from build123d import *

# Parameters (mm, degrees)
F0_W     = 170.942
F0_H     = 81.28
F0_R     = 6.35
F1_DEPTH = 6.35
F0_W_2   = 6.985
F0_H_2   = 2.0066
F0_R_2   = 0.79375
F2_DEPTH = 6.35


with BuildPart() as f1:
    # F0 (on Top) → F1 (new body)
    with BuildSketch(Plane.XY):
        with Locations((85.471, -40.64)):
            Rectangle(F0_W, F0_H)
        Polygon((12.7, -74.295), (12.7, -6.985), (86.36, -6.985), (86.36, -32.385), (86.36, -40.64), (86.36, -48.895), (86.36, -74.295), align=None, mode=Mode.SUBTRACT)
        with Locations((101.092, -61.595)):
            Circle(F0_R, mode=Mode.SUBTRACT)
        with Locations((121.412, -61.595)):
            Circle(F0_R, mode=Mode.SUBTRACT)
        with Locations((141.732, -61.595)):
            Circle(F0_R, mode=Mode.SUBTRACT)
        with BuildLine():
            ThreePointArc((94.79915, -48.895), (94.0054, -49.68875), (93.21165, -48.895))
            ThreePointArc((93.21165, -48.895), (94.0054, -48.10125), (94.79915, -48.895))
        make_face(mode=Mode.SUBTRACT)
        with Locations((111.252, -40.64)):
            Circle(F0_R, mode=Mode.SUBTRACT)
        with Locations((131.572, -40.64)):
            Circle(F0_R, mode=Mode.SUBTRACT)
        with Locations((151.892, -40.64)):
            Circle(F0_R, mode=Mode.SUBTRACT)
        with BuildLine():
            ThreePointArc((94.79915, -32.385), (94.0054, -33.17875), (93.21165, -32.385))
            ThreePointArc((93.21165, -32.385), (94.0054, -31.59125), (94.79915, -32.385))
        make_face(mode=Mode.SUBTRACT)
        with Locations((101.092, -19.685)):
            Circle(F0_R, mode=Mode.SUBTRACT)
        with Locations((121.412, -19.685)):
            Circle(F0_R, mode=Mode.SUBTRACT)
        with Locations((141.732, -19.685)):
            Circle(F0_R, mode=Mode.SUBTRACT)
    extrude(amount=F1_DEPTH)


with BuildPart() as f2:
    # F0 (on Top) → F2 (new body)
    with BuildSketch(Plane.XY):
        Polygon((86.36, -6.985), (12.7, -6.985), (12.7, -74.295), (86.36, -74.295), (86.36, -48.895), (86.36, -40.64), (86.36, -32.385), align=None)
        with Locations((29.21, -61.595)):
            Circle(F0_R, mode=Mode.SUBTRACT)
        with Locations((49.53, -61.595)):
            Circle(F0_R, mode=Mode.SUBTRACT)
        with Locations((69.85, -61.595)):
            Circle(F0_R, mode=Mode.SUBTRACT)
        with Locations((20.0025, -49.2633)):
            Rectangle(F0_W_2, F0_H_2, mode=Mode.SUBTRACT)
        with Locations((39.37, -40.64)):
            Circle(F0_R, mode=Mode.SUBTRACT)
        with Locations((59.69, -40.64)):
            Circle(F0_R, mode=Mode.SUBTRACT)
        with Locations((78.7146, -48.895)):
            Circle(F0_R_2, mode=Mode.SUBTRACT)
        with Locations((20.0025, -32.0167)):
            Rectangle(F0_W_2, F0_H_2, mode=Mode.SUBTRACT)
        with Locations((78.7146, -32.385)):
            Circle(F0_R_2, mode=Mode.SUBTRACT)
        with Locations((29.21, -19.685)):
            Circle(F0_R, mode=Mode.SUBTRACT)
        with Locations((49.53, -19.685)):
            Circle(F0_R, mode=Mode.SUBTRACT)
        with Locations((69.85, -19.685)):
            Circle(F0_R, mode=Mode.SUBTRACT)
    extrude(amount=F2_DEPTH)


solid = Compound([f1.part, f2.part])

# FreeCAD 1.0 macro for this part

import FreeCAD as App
import Part
import Sketcher

V = App.Vector
Q = App.Units.Quantity


def add_polygon(sketch, points):
    """Adds a closed chain of lines whose ends are joined by coincident constraints."""
    first, n = sketch.GeometryCount, len(points)
    for a, b in zip(points, points[1:] + points[:1]):
        sketch.addGeometry(Part.LineSegment(App.Vector(*a, 0), App.Vector(*b, 0)), False)
    for i in range(n):
        sketch.addConstraint(Sketcher.Constraint("Coincident", first + i, 2, first + (i + 1) % n, 1))

doc = App.newDocument("Part")
body = doc.addObject("PartDesign::Body", "Body")

# Sketch on XY plane
sketch1 = body.newObject("Sketcher::SketchObject", "Sketch")
sketch1.AttachmentSupport = (doc.getObject("XY_Plane"), [""])
sketch1.MapMode = "FlatFace"
add_polygon(sketch1, [(0, 0), (0, -81.3), (170.9, -81.3), (170.9, 0)])  # lines 0-3
sketch1.addGeometry(Part.Circle(V(101.1, -61.6, 0), V(0, 0, 1), 6.3), False)  # 4
sketch1.addGeometry(Part.Circle(V(121.4, -61.6, 0), V(0, 0, 1), 6.3), False)  # 5
sketch1.addGeometry(Part.Circle(V(141.7, -61.6, 0), V(0, 0, 1), 6.3), False)  # 6
sketch1.addGeometry(Part.Circle(V(94, -48.9, 0), V(0, 0, 1), 0.8), False)  # 7
add_polygon(sketch1, [(86.4, -74.3), (12.7, -74.3), (12.7, -7), (86.4, -7)])  # lines 8-11
sketch1.addGeometry(Part.Circle(V(94, -32.4, 0), V(0, 0, 1), 0.8), False)  # 12
sketch1.addGeometry(Part.Circle(V(111.3, -40.6, 0), V(0, 0, 1), 6.3), False)  # 13
sketch1.addGeometry(Part.Circle(V(131.6, -40.6, 0), V(0, 0, 1), 6.3), False)  # 14
sketch1.addGeometry(Part.Circle(V(151.9, -40.6, 0), V(0, 0, 1), 6.3), False)  # 15
sketch1.addGeometry(Part.Circle(V(101.1, -19.7, 0), V(0, 0, 1), 6.3), False)  # 16
sketch1.addGeometry(Part.Circle(V(121.4, -19.7, 0), V(0, 0, 1), 6.3), False)  # 17
sketch1.addGeometry(Part.Circle(V(141.7, -19.7, 0), V(0, 0, 1), 6.3), False)  # 18
sketch1.addConstraint([
    Sketcher.Constraint("Vertical", 0),
    Sketcher.Constraint("Horizontal", 1),
    Sketcher.Constraint("Vertical", 2),
    Sketcher.Constraint("Horizontal", 3),
    Sketcher.Constraint("Horizontal", 8),
    Sketcher.Constraint("Vertical", 9),
    Sketcher.Constraint("Horizontal", 10),
    Sketcher.Constraint("Vertical", 11),
    Sketcher.Constraint("Coincident", 3, 2, -1, 1),
    Sketcher.Constraint("Equal", 4, 5),
    Sketcher.Constraint("Equal", 5, 6),
    Sketcher.Constraint("Equal", 7, 12),
    Sketcher.Constraint("Equal", 6, 13),
    Sketcher.Constraint("Equal", 13, 14),
    Sketcher.Constraint("Equal", 14, 15),
    Sketcher.Constraint("Equal", 15, 16),
    Sketcher.Constraint("Equal", 16, 17),
    Sketcher.Constraint("Equal", 17, 18),
    Sketcher.Constraint("Horizontal", 4, 3, 5, 3),
    Sketcher.Constraint("Horizontal", 5, 3, 6, 3),
    Sketcher.Constraint("Horizontal", 13, 3, 14, 3),
    Sketcher.Constraint("Horizontal", 14, 3, 15, 3),
    Sketcher.Constraint("Horizontal", 16, 3, 17, 3),
    Sketcher.Constraint("Horizontal", 17, 3, 18, 3),
    Sketcher.Constraint("Vertical", 7, 3, 12, 3),
    Sketcher.Constraint("Vertical", 4, 3, 16, 3),
    Sketcher.Constraint("Vertical", 5, 3, 17, 3),
    Sketcher.Constraint("Vertical", 6, 3, 18, 3),
    Sketcher.Constraint("Diameter", 4, Q("0.5 in")),
    Sketcher.Constraint("Diameter", 7, Q("0.0625 in")),
    Sketcher.Constraint("DistanceX", 8, 2, 8, 1, Q("2.9 in")),
    Sketcher.Constraint("DistanceY", 0, 2, 0, 1, Q("3.2 in")),
    Sketcher.Constraint("DistanceX", 4, 3, 15, 3, Q("2 in")),
    Sketcher.Constraint("DistanceY", 8, 2, 7, 3, Q("1 in")),
    Sketcher.Constraint("DistanceY", 12, 3, 9, 2, Q("1 in")),
    Sketcher.Constraint("DistanceX", 1, 1, 1, 2, Q("6.73 in")),
    Sketcher.Constraint("DistanceY", 9, 1, 9, 2, Q("2.65 in")),
    Sketcher.Constraint("DistanceY", 13, 3, -1, 1, Q("1.6 in")),
    Sketcher.Constraint("DistanceX", -1, 1, 8, 2, Q("0.5 in")),
    Sketcher.Constraint("DistanceX", 4, 3, 5, 3, Q("0.8 in")),
    Sketcher.Constraint("DistanceX", 5, 3, 6, 3, Q("0.8 in")),
    Sketcher.Constraint("DistanceY", 4, 3, 7, 3, Q("0.5 in")),
    Sketcher.Constraint("DistanceX", 4, 3, 13, 3, Q("0.4 in")),
    Sketcher.Constraint("DistanceX", 13, 3, 14, 3, Q("0.8 in")),
    Sketcher.Constraint("DistanceY", 12, 3, 16, 3, Q("0.5 in")),
    Sketcher.Constraint("DistanceX", -1, 1, 4, 3, Q("3.98 in")),
    Sketcher.Constraint("DistanceY", 4, 3, -1, 1, Q("2.425 in")),
    Sketcher.Constraint("DistanceX", -1, 1, 7, 3, Q("3.701 in")),
])
pad1 = body.newObject("PartDesign::Pad", "Pad")
pad1.Profile = sketch1
pad1.Length = Q("0.25 in")
body2 = doc.addObject("PartDesign::Body", "Body001")

# Sketch on XY plane
sketch2 = body2.newObject("Sketcher::SketchObject", "Sketch001")
sketch2.AttachmentSupport = (doc.getObject("XY_Plane001"), [""])
sketch2.MapMode = "FlatFace"
add_polygon(sketch2, [(86.4, -7), (12.7, -7), (12.7, -74.3), (86.4, -74.3)])  # lines 0-3
sketch2.addGeometry(Part.Circle(V(29.2, -61.6, 0), V(0, 0, 1), 6.3), False)  # 4
add_polygon(sketch2, [(23.5, -50.3), (16.5, -50.3), (16.5, -48.3), (23.5, -48.3)])  # lines 5-8
sketch2.addGeometry(Part.Circle(V(49.5, -61.6, 0), V(0, 0, 1), 6.3), False)  # 9
sketch2.addGeometry(Part.Circle(V(69.8, -61.6, 0), V(0, 0, 1), 6.3), False)  # 10
sketch2.addGeometry(Part.Circle(V(78.7, -48.9, 0), V(0, 0, 1), 0.8), False)  # 11
add_polygon(sketch2, [(23.5, -33), (16.5, -33), (16.5, -31), (23.5, -31)])  # lines 12-15
sketch2.addGeometry(Part.Circle(V(39.4, -40.6, 0), V(0, 0, 1), 6.3), False)  # 16
sketch2.addGeometry(Part.Circle(V(29.2, -19.7, 0), V(0, 0, 1), 6.3), False)  # 17
sketch2.addGeometry(Part.Circle(V(59.7, -40.6, 0), V(0, 0, 1), 6.3), False)  # 18
sketch2.addGeometry(Part.Circle(V(78.7, -32.4, 0), V(0, 0, 1), 0.8), False)  # 19
sketch2.addGeometry(Part.Circle(V(49.5, -19.7, 0), V(0, 0, 1), 6.3), False)  # 20
sketch2.addGeometry(Part.Circle(V(69.8, -19.7, 0), V(0, 0, 1), 6.3), False)  # 21
sketch2.addConstraint([
    Sketcher.Constraint("Horizontal", 0),
    Sketcher.Constraint("Vertical", 1),
    Sketcher.Constraint("Horizontal", 2),
    Sketcher.Constraint("Vertical", 3),
    Sketcher.Constraint("Horizontal", 5),
    Sketcher.Constraint("Vertical", 6),
    Sketcher.Constraint("Horizontal", 7),
    Sketcher.Constraint("Vertical", 8),
    Sketcher.Constraint("Horizontal", 12),
    Sketcher.Constraint("Vertical", 13),
    Sketcher.Constraint("Horizontal", 14),
    Sketcher.Constraint("Vertical", 15),
    Sketcher.Constraint("Equal", 4, 9),
    Sketcher.Constraint("Equal", 9, 10),
    Sketcher.Constraint("Equal", 10, 16),
    Sketcher.Constraint("Equal", 16, 17),
    Sketcher.Constraint("Equal", 17, 18),
    Sketcher.Constraint("Equal", 11, 19),
    Sketcher.Constraint("Equal", 18, 20),
    Sketcher.Constraint("Equal", 20, 21),
    Sketcher.Constraint("Horizontal", 4, 3, 9, 3),
    Sketcher.Constraint("Horizontal", 9, 3, 10, 3),
    Sketcher.Constraint("Horizontal", 16, 3, 18, 3),
    Sketcher.Constraint("Horizontal", 17, 3, 20, 3),
    Sketcher.Constraint("Horizontal", 20, 3, 21, 3),
    Sketcher.Constraint("Vertical", 4, 3, 17, 3),
    Sketcher.Constraint("Vertical", 11, 3, 19, 3),
    Sketcher.Constraint("Vertical", 9, 3, 20, 3),
    Sketcher.Constraint("Vertical", 10, 3, 21, 3),
    Sketcher.Constraint("Vertical", 6, 2, 12, 2),
    Sketcher.Constraint("Vertical", 8, 2, 14, 2),
    Sketcher.Constraint("Equal", 8, 13),
    Sketcher.Constraint("Diameter", 4, Q("0.5 in")),
    Sketcher.Constraint("Diameter", 11, Q("0.0625 in")),
    Sketcher.Constraint("DistanceX", 0, 2, 0, 1, Q("2.9 in")),
    Sketcher.Constraint("DistanceY", 2, 2, 11, 3, Q("1 in")),
    Sketcher.Constraint("DistanceY", 19, 3, 3, 2, Q("1 in")),
    Sketcher.Constraint("DistanceY", 1, 2, 1, 1, Q("2.65 in")),
    Sketcher.Constraint("DistanceY", 16, 3, -1, 1, Q("1.6 in")),
    Sketcher.Constraint("DistanceX", -1, 1, 0, 2, Q("0.5 in")),
    Sketcher.Constraint("DistanceY", 6, 2, -1, 1, Q("1.9 in")),
    Sketcher.Constraint("DistanceY", 12, 2, -1, 1, Q("1.3 in")),
    Sketcher.Constraint("DistanceX", 4, 3, 9, 3, Q("0.8 in")),
    Sketcher.Constraint("DistanceX", 9, 3, 10, 3, Q("0.8 in")),
    Sketcher.Constraint("DistanceY", 10, 3, 11, 3, Q("0.5 in")),
    Sketcher.Constraint("DistanceX", 4, 3, 16, 3, Q("0.4 in")),
    Sketcher.Constraint("DistanceX", 16, 3, 18, 3, Q("0.8 in")),
    Sketcher.Constraint("DistanceY", 19, 3, 20, 3, Q("0.5 in")),
    Sketcher.Constraint("DistanceX", 5, 2, 4, 3, Q("0.5 in")),
    Sketcher.Constraint("DistanceX", 5, 2, 5, 1, Q("0.275 in")),
    Sketcher.Constraint("DistanceY", 6, 1, 6, 2, Q("0.079 in")),
    Sketcher.Constraint("DistanceX", -1, 1, 4, 3, Q("1.15 in")),
    Sketcher.Constraint("DistanceY", 4, 3, -1, 1, Q("2.425 in")),
    Sketcher.Constraint("DistanceX", -1, 1, 11, 3, Q("3.099 in")),
])
pad2 = body2.newObject("PartDesign::Pad", "Pad001")
pad2.Profile = sketch2
pad2.Length = Q("0.25 in")

doc.recompute()
